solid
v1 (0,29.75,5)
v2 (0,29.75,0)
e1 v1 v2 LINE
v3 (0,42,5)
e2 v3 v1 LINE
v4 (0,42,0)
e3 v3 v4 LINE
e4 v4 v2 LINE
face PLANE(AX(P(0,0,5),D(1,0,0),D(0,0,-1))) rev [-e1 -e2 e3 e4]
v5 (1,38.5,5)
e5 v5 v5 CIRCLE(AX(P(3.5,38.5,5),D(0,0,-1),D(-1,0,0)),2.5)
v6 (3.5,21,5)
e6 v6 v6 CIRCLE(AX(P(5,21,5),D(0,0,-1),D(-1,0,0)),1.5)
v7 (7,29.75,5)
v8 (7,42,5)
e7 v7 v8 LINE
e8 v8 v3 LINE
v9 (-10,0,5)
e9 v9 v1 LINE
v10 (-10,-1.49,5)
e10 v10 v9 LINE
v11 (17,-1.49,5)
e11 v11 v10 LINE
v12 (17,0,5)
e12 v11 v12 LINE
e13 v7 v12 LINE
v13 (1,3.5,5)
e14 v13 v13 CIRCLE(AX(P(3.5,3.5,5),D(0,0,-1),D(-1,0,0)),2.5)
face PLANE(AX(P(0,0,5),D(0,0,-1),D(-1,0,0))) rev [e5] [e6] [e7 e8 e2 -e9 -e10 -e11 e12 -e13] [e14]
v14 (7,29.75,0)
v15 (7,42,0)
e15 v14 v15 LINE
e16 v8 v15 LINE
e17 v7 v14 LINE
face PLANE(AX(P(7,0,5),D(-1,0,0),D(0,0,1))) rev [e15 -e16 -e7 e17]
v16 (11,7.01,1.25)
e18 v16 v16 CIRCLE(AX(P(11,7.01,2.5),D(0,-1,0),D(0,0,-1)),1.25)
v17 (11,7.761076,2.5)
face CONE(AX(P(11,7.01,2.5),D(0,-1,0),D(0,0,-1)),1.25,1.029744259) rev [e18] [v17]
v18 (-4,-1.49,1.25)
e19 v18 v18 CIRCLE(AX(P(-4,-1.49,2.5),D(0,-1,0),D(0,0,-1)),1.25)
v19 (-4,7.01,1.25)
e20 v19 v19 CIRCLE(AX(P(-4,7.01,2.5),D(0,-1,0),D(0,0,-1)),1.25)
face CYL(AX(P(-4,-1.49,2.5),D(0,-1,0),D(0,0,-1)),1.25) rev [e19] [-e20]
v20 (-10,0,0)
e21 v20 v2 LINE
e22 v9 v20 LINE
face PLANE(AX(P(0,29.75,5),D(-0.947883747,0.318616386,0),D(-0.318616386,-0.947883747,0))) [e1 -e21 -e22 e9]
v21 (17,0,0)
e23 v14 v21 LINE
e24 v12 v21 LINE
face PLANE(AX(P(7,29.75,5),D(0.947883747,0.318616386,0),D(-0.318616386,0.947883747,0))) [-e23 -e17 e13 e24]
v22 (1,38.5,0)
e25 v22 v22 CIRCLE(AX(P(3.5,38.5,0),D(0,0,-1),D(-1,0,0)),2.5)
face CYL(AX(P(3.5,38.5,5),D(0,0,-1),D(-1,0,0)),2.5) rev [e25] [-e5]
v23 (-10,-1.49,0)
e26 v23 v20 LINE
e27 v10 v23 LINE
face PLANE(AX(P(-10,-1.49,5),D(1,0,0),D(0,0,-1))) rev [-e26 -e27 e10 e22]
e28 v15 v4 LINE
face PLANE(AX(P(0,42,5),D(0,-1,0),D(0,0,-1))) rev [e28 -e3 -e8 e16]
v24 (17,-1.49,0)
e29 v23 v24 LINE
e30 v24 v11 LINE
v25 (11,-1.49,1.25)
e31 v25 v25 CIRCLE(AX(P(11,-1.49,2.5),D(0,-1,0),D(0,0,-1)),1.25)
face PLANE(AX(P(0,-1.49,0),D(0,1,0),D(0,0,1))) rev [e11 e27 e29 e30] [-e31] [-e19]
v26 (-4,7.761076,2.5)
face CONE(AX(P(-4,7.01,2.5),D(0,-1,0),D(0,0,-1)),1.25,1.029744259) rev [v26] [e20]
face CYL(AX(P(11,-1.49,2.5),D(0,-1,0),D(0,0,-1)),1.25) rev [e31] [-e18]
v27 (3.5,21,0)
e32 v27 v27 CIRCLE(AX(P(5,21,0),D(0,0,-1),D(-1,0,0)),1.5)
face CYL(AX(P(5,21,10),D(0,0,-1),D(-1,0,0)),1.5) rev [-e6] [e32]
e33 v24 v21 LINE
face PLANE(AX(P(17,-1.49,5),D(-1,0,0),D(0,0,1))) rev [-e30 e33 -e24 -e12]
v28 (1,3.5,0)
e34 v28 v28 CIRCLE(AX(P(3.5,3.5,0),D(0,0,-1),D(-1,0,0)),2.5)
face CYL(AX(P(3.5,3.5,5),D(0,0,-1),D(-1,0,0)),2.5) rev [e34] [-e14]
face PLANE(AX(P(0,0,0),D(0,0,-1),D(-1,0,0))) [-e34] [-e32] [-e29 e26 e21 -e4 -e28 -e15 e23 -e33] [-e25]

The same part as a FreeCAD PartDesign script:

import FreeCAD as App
import Part
import Sketcher

V = App.Vector
Q = App.Units.Quantity

doc = App.newDocument("Part")
body = doc.addObject("PartDesign::Body", "Body")

sketch1 = body.newObject("Sketcher::SketchObject", "Sketch")
sketch1.AttachmentSupport = (doc.getObject("XY_Plane"), [""])
sketch1.MapMode = "FlatFace"
sketch1.addGeometry([
    Part.LineSegment(V(0, 42, 0), V(0, 0, 0)),
    Part.LineSegment(V(0, 0, 0), V(7, 0, 0)),
    Part.LineSegment(V(7, 0, 0), V(7, 42, 0)),
    Part.LineSegment(V(7, 42, 0), V(0, 42, 0)),
], False)
sketch1.addConstraint([
    Sketcher.Constraint("Coincident", 0, 2, 1, 1),
    Sketcher.Constraint("Coincident", 1, 2, 2, 1),
    Sketcher.Constraint("Coincident", 2, 2, 3, 1),
    Sketcher.Constraint("Coincident", 3, 2, 0, 1),
    Sketcher.Constraint("Vertical", 0),
    Sketcher.Constraint("Horizontal", 1),
    Sketcher.Constraint("Vertical", 2),
    Sketcher.Constraint("Horizontal", 3),
    Sketcher.Constraint("Coincident", 0, 2, -1, 1),
    Sketcher.Constraint("DistanceX", 1, 1, 1, 2, Q("7 mm")),
    Sketcher.Constraint("DistanceY", 0, 2, 0, 1, Q("42 mm")),
])
pad1 = body.newObject("PartDesign::Pad", "Pad")
pad1.Profile = sketch1
pad1.Length = 5

sketch2 = body.newObject("Sketcher::SketchObject", "Sketch001")
sketch2.AttachmentSupport = (doc.getObject("XY_Plane"), [""])
sketch2.MapMode = "FlatFace"
sketch2.addGeometry([
    Part.Circle(V(3.5, 38.5, 0), V(0, 0, 1), 2.5),
    Part.Circle(V(3.5, 3.5, 0), V(0, 0, 1), 2.5),
], False)
sketch2.addConstraint([
    Sketcher.Constraint("Equal", 0, 1),
    Sketcher.Constraint("Vertical", 0, 3, 1, 3),
    Sketcher.Constraint("Diameter", 0, Q("5 mm")),
    Sketcher.Constraint("DistanceY", 1, 3, 0, 3, Q("35 mm")),
    Sketcher.Constraint("DistanceX", -1, 1, 0, 3, Q("3.5 mm")),
    Sketcher.Constraint("DistanceY", -1, 1, 0, 3, Q("38.5 mm")),
])
pocket1 = body.newObject("PartDesign::Pocket", "Pocket")
pocket1.Profile = sketch2
pocket1.Type = "ThroughAll"
pocket1.Reversed = True

sketch3 = body.newObject("Sketcher::SketchObject", "Sketch002")
sketch3.AttachmentSupport = (doc.getObject("XY_Plane"), [""])
sketch3.MapMode = "FlatFace"
sketch3.addGeometry(Part.Circle(V(5, 21, 0), V(0, 0, 1), 1.5), False)
sketch3.addConstraint([
    Sketcher.Constraint("Diameter", 0, Q("3 mm")),
    Sketcher.Constraint("DistanceX", -1, 1, 0, 3, Q("5 mm")),
    Sketcher.Constraint("DistanceY", -1, 1, 0, 3, Q("21 mm")),
])
pocket2 = body.newObject("PartDesign::Pocket", "Pocket001")
pocket2.Profile = sketch3
pocket2.Length = 10
pocket2.Reversed = True

sketch4 = body.newObject("Sketcher::SketchObject", "Sketch003")
sketch4.AttachmentSupport = (doc.getObject("XY_Plane"), [""])
sketch4.MapMode = "FlatFace"
sketch4.addGeometry([
    Part.LineSegment(V(7, 30, 0), V(17, 0, 0)),
    Part.LineSegment(V(17, 0, 0), V(7, 0, 0)),
    Part.LineSegment(V(7, 0, 0), V(7, 30, 0)),
    Part.LineSegment(V(0, 0, 0), V(-10, 0, 0)),
    Part.LineSegment(V(-10, 0, 0), V(0, 30, 0)),
    Part.LineSegment(V(0, 30, 0), V(0, 0, 0)),
], False)
sketch4.addConstraint([
    Sketcher.Constraint("Coincident", 0, 2, 1, 1),
    Sketcher.Constraint("Coincident", 1, 2, 2, 1),
    Sketcher.Constraint("Coincident", 2, 2, 0, 1),
    Sketcher.Constraint("Coincident", 3, 2, 4, 1),
    Sketcher.Constraint("Coincident", 4, 2, 5, 1),
    Sketcher.Constraint("Coincident", 5, 2, 3, 1),
    Sketcher.Constraint("Horizontal", 1),
    Sketcher.Constraint("Vertical", 2),
    Sketcher.Constraint("Horizontal", 3),
    Sketcher.Constraint("Vertical", 5),
    Sketcher.Constraint("Coincident", 5, 2, -1, 1),
    Sketcher.Constraint("PointOnObject", 0, 2, -1),
    Sketcher.Constraint("Horizontal", 2, 2, 4, 2),
    Sketcher.Constraint("Equal", 1, 3),
    Sketcher.Constraint("DistanceX", 1, 2, 1, 1, Q("10 mm")),
    Sketcher.Constraint("DistanceX", -1, 1, 0, 2, Q("17 mm")),
    Sketcher.Constraint("DistanceY", 2, 1, 2, 2, Q("29.75 mm")),
])
pad2 = body.newObject("PartDesign::Pad", "Pad001")
pad2.Profile = sketch4
pad2.Length = 5

sketch5 = body.newObject("Sketcher::SketchObject", "Sketch004")
sketch5.AttachmentSupport = (doc.getObject("XZ_Plane"), [""])
sketch5.MapMode = "FlatFace"
sketch5.addGeometry([
    Part.LineSegment(V(17, 0, 0), V(17, 5, 0)),
    Part.LineSegment(V(17, 5, 0), V(-10, 5, 0)),
    Part.LineSegment(V(-10, 5, 0), V(-10, 0, 0)),
    Part.LineSegment(V(-10, 0, 0), V(17, 0, 0)),
], False)
sketch5.addConstraint([
    Sketcher.Constraint("Coincident", 0, 2, 1, 1),
    Sketcher.Constraint("Coincident", 1, 2, 2, 1),
    Sketcher.Constraint("Coincident", 2, 2, 3, 1),
    Sketcher.Constraint("Coincident", 3, 2, 0, 1),
    Sketcher.Constraint("Vertical", 0),
    Sketcher.Constraint("Horizontal", 1),
    Sketcher.Constraint("Vertical", 2),
    Sketcher.Constraint("Horizontal", 3),
    Sketcher.Constraint("PointOnObject", 2, 2, -1),
    Sketcher.Constraint("DistanceX", 1, 2, 1, 1, Q("27 mm")),
    Sketcher.Constraint("DistanceY", 0, 1, 0, 2, Q("5 mm")),
    Sketcher.Constraint("DistanceX", -1, 1, 0, 2, Q("17 mm")),
])
pad3 = body.newObject("PartDesign::Pad", "Pad002")
pad3.Profile = sketch5
pad3.Length = 1.49

sketch6 = body.newObject("Sketcher::SketchObject", "Sketch005")
sketch6.AttachmentSupport = (doc.getObject("XZ_Plane"), [""])
sketch6.MapMode = "FlatFace"
sketch6.AttachmentOffset = App.Placement(V(0, 0, 1.49), App.Rotation())
sketch6.addGeometry([
    Part.Circle(V(-4, 2.5, 0), V(0, 0, 1), 1.2),
    Part.Circle(V(11, 2.5, 0), V(0, 0, 1), 1.2),
], False)
sketch6.addConstraint([
    Sketcher.Constraint("Equal", 0, 1),
    Sketcher.Constraint("Horizontal", 0, 3, 1, 3),
    Sketcher.Constraint("Diameter", 0, Q("2.5 mm")),
    Sketcher.Constraint("DistanceX", 0, 3, -1, 1, Q("4 mm")),
    Sketcher.Constraint("DistanceX", -1, 1, 1, 3, Q("11 mm")),
    Sketcher.Constraint("DistanceY", -1, 1, 0, 3, Q("2.5 mm")),
])
doc.recompute()
hole = body.newObject("PartDesign::Hole", "Hole")
hole.Profile = sketch6
hole.ThreadType = "None"
hole.Diameter = 2.5
hole.DepthType = "Dimension"
hole.Depth = 8.5
hole.DrillPoint = "Angled"
hole.DrillPointAngle = 118

doc.recompute()
